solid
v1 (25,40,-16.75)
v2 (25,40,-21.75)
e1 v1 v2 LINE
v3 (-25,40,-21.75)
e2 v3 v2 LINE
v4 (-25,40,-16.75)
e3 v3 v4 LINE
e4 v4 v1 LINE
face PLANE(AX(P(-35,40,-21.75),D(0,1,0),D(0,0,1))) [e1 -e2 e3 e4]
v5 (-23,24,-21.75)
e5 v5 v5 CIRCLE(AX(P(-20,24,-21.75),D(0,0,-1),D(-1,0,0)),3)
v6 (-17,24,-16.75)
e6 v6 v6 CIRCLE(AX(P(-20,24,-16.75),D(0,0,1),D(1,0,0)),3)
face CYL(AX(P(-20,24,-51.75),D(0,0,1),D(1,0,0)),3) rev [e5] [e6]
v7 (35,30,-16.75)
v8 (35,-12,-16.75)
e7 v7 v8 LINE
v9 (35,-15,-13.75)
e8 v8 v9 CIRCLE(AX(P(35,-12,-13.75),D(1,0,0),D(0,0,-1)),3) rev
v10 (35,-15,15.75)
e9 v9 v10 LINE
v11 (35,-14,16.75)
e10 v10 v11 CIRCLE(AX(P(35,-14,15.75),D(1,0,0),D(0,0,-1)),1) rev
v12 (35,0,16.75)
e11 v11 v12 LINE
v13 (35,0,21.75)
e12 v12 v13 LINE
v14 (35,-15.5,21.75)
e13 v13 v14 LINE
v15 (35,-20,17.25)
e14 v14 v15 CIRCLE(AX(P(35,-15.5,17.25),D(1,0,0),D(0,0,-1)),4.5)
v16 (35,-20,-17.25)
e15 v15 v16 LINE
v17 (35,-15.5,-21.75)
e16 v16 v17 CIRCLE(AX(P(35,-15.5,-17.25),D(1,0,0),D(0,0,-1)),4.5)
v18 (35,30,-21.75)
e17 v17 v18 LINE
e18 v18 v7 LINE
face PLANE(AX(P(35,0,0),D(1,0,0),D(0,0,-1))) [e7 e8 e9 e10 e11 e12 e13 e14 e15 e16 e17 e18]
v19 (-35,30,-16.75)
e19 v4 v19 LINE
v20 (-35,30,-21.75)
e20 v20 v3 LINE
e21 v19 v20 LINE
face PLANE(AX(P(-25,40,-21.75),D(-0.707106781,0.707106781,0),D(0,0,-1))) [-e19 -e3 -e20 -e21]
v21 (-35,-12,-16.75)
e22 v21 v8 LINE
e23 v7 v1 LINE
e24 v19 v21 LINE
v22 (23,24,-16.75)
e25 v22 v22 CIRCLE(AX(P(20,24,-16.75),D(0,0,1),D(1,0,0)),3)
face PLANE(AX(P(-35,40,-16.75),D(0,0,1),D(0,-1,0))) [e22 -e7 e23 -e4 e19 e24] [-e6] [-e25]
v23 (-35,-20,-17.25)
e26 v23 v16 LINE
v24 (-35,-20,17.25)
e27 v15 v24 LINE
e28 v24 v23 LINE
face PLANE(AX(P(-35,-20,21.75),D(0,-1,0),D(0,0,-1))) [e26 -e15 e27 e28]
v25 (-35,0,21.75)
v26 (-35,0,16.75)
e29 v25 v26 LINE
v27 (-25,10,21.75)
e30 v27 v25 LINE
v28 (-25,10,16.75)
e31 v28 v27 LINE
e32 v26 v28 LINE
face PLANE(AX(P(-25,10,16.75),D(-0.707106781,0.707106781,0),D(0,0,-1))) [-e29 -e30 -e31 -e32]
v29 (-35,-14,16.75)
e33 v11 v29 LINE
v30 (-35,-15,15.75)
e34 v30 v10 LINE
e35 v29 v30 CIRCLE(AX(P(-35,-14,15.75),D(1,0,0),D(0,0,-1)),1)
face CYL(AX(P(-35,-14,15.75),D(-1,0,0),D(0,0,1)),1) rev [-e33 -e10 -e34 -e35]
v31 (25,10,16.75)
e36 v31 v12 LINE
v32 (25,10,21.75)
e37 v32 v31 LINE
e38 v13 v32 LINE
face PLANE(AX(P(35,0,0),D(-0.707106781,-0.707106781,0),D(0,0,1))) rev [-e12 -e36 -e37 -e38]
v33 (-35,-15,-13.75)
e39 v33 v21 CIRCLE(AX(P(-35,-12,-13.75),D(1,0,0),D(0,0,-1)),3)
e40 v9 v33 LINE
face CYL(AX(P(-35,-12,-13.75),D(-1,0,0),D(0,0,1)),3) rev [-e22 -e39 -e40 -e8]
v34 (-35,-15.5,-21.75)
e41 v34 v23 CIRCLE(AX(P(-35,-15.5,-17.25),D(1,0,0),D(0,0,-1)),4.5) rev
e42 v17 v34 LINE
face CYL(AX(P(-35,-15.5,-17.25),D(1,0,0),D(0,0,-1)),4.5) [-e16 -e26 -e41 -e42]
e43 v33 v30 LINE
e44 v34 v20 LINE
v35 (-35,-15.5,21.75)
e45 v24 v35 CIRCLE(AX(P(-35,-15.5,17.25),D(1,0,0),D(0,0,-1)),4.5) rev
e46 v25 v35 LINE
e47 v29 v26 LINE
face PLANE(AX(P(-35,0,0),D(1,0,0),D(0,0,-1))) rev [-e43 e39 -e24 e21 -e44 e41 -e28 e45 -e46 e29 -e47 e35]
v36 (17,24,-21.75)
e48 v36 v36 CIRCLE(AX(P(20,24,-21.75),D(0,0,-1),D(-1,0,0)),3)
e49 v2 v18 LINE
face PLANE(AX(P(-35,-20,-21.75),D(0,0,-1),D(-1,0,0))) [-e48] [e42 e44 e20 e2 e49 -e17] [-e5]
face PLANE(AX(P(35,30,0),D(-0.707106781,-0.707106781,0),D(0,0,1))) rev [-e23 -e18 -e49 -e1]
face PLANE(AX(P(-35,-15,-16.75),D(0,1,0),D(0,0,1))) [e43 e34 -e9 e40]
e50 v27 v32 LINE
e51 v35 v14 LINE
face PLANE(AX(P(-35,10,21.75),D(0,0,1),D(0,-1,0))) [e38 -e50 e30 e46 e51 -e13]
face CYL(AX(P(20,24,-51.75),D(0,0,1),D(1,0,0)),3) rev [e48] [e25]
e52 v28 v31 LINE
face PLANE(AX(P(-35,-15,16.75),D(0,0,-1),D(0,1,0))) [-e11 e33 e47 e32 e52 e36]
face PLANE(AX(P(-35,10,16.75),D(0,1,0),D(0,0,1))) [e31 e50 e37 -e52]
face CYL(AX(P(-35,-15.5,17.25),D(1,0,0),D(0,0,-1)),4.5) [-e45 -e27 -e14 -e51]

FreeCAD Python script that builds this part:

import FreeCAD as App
import Part
import Sketcher
Q = App.Units.Quantity


def edges_at(feature, points):
    """Names of the edges that pass closest to the given points."""
    edges = feature.Shape.Edges
    near = lambda p: min(range(len(edges)), key=lambda i: edges[i].distToShape(Part.Vertex(*p))[0])
    return sorted({f"Edge{near(p) + 1}" for p in points})

doc = App.newDocument("Part")
params = doc.addObject("Spreadsheet::Sheet", "Params")
for row, (alias, value) in enumerate([
    ("sketch1_width", "30 mm"),
    ("sketch1_width2", "60 mm"),
    ("sketch1_width3", "55 mm"),
    ("sketch1_height", "5 mm"),
    ("sketch1_height2", "43.5 mm"),
    ("pad1_length", "35 mm"),
    ("pad1_length2", "35 mm"),
    ("chamfer_size", "10 mm"),
    ("sketch2_diameter", "6 mm"),
    ("pocket1_length", "35 mm"),
    ("fillet_radius", "3 mm"),
    ("fillet2_radius", "4.5 mm"),
    ("fillet3_radius", "1 mm"),
], start=1):
    params.set(f"A{row}", alias)
    params.set(f"B{row}", "=" + value)
    params.setAlias(f"B{row}", alias)

body = doc.addObject("PartDesign::Body", "Body")

# Sketch on YZ plane
sketch1 = doc.addObject("Sketcher::SketchObject", "Sketch")
body.addObject(sketch1)
sketch1.AttachmentSupport = (doc.YZ_Plane, [""])
sketch1.MapMode = "FlatFace"
sketch1.addGeometry([
    Part.LineSegment(App.Vector(10, 22, 0), App.Vector(-20, 22, 0)),  # 0
    Part.LineSegment(App.Vector(-20, 22, 0), App.Vector(-20, -22, 0)),  # 1
    Part.LineSegment(App.Vector(-20, -22, 0), App.Vector(40, -22, 0)),  # 2
    Part.LineSegment(App.Vector(40, -22, 0), App.Vector(40, -17, 0)),  # 3
    Part.LineSegment(App.Vector(40, -17, 0), App.Vector(-15, -17, 0)),  # 4
    Part.LineSegment(App.Vector(-15, -17, 0), App.Vector(-15, 17, 0)),  # 5
    Part.LineSegment(App.Vector(-15, 17, 0), App.Vector(10, 17, 0)),  # 6
    Part.LineSegment(App.Vector(10, 17, 0), App.Vector(10, 22, 0)),  # 7
], False)
sketch1.addConstraint([
    Sketcher.Constraint("Coincident", 0, 2, 1, 1),
    Sketcher.Constraint("Coincident", 1, 2, 2, 1),
    Sketcher.Constraint("Coincident", 2, 2, 3, 1),
    Sketcher.Constraint("Coincident", 3, 2, 4, 1),
    Sketcher.Constraint("Coincident", 4, 2, 5, 1),
    Sketcher.Constraint("Coincident", 5, 2, 6, 1),
    Sketcher.Constraint("Coincident", 6, 2, 7, 1),
    Sketcher.Constraint("Coincident", 7, 2, 0, 1),
    Sketcher.Constraint("Horizontal", 0),
    Sketcher.Constraint("Vertical", 1),
    Sketcher.Constraint("Horizontal", 2),
    Sketcher.Constraint("Vertical", 3),
    Sketcher.Constraint("Horizontal", 4),
    Sketcher.Constraint("Vertical", 5),
    Sketcher.Constraint("Horizontal", 6),
    Sketcher.Constraint("Vertical", 7),
    Sketcher.Constraint("Equal", 3, 7),
    Sketcher.Constraint("DistanceX", 0, 2, 0, 1, Q("30 mm")),
    Sketcher.Constraint("DistanceX", 2, 1, 2, 2, Q("60 mm")),
    Sketcher.Constraint("DistanceX", 4, 2, 4, 1, Q("55 mm")),
    Sketcher.Constraint("DistanceY", 3, 1, 3, 2, Q("5 mm")),
    Sketcher.Constraint("DistanceY", 1, 2, 1, 1, Q("43.5 mm")),
    Sketcher.Constraint("DistanceX", 0, 2, -1, 1, Q("20 mm")),
    Sketcher.Constraint("DistanceY", -1, 1, 0, 2, Q("21.75 mm")),
])
sketch1.setExpression("Constraints[17]", "Params.sketch1_width")
sketch1.setExpression("Constraints[18]", "Params.sketch1_width2")
sketch1.setExpression("Constraints[19]", "Params.sketch1_width3")
sketch1.setExpression("Constraints[20]", "Params.sketch1_height")
sketch1.setExpression("Constraints[21]", "Params.sketch1_height2")
pad1 = doc.addObject("PartDesign::Pad", "Pad")
body.addObject(pad1)
pad1.Profile = sketch1
pad1.Type = "TwoLengths"
pad1.setExpression("Length", "Params.pad1_length")
pad1.setExpression("Length2", "Params.pad1_length2")
doc.recompute()

chamfer = doc.addObject("PartDesign::Chamfer", "Chamfer")
body.addObject(chamfer)
chamfer.Base = (pad1, edges_at(pad1, [
    (-35, 40, -19.25),
    (35, 10, 19.25),
    (35, 40, -19.25),
    (-35, 10, 19.25),
]))
chamfer.setExpression("Size", "Params.chamfer_size")

# Sketch on XY plane
sketch2 = doc.addObject("Sketcher::SketchObject", "Sketch001")
body.addObject(sketch2)
sketch2.AttachmentSupport = (doc.XY_Plane, [""])
sketch2.MapMode = "FlatFace"
sketch2.AttachmentOffset = App.Placement(App.Vector(0, 0, -16.75), App.Rotation())
sketch2.addGeometry([
    Part.Circle(App.Vector(-20, 24, 0), App.Vector(0, 0, 1), 3),
    Part.Circle(App.Vector(20, 24, 0), App.Vector(0, 0, 1), 3),
], False)
sketch2.addConstraint([
    Sketcher.Constraint("Equal", 0, 1),
    Sketcher.Constraint("Symmetric", 0, 3, 1, 3, -2),
    Sketcher.Constraint("Diameter", 0, Q("6 mm")),
    Sketcher.Constraint("DistanceX", 0, 3, -1, 1, Q("20 mm")),
    Sketcher.Constraint("DistanceY", -1, 1, 0, 3, Q("24 mm")),
])
sketch2.setExpression("Constraints[2]", "Params.sketch2_diameter")
pocket1 = doc.addObject("PartDesign::Pocket", "Pocket")
body.addObject(pocket1)
pocket1.Profile = sketch2
pocket1.setExpression("Length", "Params.pocket1_length")
doc.recompute()

fillet = doc.addObject("PartDesign::Fillet", "Fillet")
body.addObject(fillet)
fillet.Base = (pocket1, edges_at(pocket1, [(0, -15, -16.75)]))
fillet.setExpression("Radius", "Params.fillet_radius")
doc.recompute()

fillet2 = doc.addObject("PartDesign::Fillet", "Fillet001")
body.addObject(fillet2)
fillet2.Base = (fillet, edges_at(fillet, [(0, -20, -21.75), (0, -20, 21.75)]))
fillet2.setExpression("Radius", "Params.fillet2_radius")
doc.recompute()

fillet3 = doc.addObject("PartDesign::Fillet", "Fillet002")
body.addObject(fillet3)
fillet3.Base = (fillet2, edges_at(fillet2, [(0, -15, 16.75)]))
fillet3.setExpression("Radius", "Params.fillet3_radius")

doc.recompute()
